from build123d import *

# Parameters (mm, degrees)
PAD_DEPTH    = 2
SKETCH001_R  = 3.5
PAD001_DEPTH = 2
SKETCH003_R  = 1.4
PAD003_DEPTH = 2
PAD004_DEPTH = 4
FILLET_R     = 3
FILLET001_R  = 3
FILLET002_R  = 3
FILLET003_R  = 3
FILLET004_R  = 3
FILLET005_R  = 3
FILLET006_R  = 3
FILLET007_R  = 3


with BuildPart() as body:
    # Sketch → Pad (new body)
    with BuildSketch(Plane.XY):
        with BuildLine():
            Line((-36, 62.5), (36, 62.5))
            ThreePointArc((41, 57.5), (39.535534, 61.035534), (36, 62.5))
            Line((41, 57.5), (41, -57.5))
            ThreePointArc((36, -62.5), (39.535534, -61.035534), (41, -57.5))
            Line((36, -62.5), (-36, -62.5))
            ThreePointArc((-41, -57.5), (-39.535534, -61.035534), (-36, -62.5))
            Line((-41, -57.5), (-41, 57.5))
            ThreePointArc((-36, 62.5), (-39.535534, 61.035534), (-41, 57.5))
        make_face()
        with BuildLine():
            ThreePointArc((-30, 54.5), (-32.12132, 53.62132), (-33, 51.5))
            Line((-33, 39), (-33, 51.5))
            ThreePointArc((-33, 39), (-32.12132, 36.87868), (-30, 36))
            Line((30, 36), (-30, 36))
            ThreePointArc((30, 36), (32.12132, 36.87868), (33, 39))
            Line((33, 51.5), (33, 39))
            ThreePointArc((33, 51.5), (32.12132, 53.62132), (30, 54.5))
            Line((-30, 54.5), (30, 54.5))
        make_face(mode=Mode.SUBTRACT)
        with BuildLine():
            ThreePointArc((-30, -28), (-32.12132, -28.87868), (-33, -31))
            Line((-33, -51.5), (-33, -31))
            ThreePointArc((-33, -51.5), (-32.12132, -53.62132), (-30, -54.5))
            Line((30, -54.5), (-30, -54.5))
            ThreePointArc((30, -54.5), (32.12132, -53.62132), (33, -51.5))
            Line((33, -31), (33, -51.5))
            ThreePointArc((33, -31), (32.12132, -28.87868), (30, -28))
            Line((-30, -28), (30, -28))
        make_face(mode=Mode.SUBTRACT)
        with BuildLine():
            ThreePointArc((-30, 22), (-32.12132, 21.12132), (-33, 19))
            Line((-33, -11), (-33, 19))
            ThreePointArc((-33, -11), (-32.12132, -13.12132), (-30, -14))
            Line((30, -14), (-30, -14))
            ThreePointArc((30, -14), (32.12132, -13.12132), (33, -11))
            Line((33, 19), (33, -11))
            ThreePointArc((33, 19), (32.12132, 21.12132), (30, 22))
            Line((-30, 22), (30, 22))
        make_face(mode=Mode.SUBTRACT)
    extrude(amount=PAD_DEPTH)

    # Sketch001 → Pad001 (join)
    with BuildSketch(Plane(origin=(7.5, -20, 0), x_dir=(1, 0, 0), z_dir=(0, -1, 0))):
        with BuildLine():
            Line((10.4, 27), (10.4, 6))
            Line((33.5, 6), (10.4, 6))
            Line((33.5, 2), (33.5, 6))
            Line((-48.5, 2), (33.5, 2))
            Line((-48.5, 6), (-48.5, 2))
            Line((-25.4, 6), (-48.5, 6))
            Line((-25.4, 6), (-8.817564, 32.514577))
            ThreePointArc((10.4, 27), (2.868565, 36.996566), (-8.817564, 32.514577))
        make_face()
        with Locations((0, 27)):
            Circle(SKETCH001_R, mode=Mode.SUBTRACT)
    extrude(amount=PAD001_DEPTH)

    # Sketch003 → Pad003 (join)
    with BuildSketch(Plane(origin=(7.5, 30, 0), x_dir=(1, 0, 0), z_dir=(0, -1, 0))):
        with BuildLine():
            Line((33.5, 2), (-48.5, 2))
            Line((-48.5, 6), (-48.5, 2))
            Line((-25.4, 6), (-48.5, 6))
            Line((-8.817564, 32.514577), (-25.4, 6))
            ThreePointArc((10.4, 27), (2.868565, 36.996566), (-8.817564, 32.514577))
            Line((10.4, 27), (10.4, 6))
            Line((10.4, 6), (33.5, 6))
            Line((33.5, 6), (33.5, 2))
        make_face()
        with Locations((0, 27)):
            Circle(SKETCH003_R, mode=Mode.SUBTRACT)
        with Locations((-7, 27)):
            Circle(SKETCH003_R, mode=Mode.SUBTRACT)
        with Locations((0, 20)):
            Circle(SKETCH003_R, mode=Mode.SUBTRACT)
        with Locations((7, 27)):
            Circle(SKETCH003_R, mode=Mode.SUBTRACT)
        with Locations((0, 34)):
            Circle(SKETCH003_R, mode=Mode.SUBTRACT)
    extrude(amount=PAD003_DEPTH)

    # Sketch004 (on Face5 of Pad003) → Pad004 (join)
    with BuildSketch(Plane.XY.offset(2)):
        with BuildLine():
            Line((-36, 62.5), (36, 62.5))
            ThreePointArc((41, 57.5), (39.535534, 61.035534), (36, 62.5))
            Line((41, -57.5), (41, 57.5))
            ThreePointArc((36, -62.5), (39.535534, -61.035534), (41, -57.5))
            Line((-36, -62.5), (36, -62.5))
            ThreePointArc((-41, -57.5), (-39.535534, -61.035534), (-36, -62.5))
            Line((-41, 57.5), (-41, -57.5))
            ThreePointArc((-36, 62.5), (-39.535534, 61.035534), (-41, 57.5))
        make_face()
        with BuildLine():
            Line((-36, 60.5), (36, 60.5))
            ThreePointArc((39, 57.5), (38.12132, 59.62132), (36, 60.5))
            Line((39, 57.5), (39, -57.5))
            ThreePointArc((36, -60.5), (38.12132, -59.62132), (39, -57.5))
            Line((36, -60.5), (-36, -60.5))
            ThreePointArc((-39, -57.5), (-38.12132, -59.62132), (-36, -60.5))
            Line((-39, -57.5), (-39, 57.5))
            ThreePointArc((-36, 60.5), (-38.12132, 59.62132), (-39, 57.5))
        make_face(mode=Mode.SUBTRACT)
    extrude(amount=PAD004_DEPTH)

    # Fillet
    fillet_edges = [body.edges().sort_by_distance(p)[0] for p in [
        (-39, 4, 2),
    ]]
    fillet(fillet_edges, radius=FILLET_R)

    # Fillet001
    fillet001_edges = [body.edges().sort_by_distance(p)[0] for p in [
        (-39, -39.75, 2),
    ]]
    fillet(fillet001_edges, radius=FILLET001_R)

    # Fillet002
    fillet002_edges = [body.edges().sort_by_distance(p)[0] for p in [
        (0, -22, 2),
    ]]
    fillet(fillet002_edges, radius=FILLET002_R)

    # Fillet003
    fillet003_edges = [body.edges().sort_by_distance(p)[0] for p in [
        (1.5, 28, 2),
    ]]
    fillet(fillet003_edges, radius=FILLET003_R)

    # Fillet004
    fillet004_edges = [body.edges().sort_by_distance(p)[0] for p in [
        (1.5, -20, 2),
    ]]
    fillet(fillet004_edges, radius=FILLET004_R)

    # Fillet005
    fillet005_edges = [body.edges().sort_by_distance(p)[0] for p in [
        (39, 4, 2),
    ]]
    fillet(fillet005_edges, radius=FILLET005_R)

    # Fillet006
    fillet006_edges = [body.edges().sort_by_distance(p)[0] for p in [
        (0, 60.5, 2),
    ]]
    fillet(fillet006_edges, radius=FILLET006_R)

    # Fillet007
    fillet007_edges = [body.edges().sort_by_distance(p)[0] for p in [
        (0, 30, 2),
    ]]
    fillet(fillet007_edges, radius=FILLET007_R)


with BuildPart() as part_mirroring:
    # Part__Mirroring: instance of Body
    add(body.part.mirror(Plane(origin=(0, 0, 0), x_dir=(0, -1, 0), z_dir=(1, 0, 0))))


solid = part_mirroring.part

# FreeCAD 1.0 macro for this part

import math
import FreeCAD as App
import Part
import Sketcher
Q = App.Units.Quantity


def edges_at(feature, points):
    """Names of the edges that pass closest to the given points."""
    edges = feature.Shape.Edges
    near = lambda p: min(range(len(edges)), key=lambda i: edges[i].distToShape(Part.Vertex(*p))[0])
    return sorted({f"Edge{near(p) + 1}" for p in points})

doc = App.newDocument("Part")
body = doc.addObject("PartDesign::Body", "Body")

sketch1 = body.newObject("Sketcher::SketchObject", "Sketch")
sketch1.AttachmentSupport = (doc.getObject("XY_Plane"), [""])
sketch1.MapMode = "FlatFace"
sketch1.addGeometry([
    Part.LineSegment(App.Vector(36, 62.5, 0), App.Vector(-36, 62.5, 0)),
    Part.ArcOfCircle(Part.Circle(App.Vector(-36, 57.5, 0), App.Vector(0, 0, 1), 5), math.radians(90), math.radians(180)),
    Part.LineSegment(App.Vector(-41, 57.5, 0), App.Vector(-41, -57.5, 0)),
    Part.ArcOfCircle(Part.Circle(App.Vector(-36, -57.5, 0), App.Vector(0, 0, 1), 5), math.radians(180), math.radians(270)),
    Part.LineSegment(App.Vector(-36, -62.5, 0), App.Vector(36, -62.5, 0)),
    Part.ArcOfCircle(Part.Circle(App.Vector(36, -57.5, 0), App.Vector(0, 0, 1), 5), math.radians(-90), math.radians(0)),
    Part.LineSegment(App.Vector(41, -57.5, 0), App.Vector(41, 57.5, 0)),
    Part.ArcOfCircle(Part.Circle(App.Vector(36, 57.5, 0), App.Vector(0, 0, 1), 5), math.radians(0), math.radians(90)),
    Part.LineSegment(App.Vector(-30, -28, 0), App.Vector(30, -28, 0)),
    Part.ArcOfCircle(Part.Circle(App.Vector(30, -31, 0), App.Vector(0, 0, 1), 3), math.radians(0), math.radians(90)),
    Part.LineSegment(App.Vector(33, -31, 0), App.Vector(33, -51.5, 0)),
    Part.ArcOfCircle(Part.Circle(App.Vector(30, -51.5, 0), App.Vector(0, 0, 1), 3), math.radians(-90), math.radians(0)),
    Part.LineSegment(App.Vector(30, -54.5, 0), App.Vector(-30, -54.5, 0)),
    Part.ArcOfCircle(Part.Circle(App.Vector(-30, -51.5, 0), App.Vector(0, 0, 1), 3), math.radians(-180), math.radians(-90)),
    Part.LineSegment(App.Vector(-33, -51.5, 0), App.Vector(-33, -31, 0)),
    Part.ArcOfCircle(Part.Circle(App.Vector(-30, -31, 0), App.Vector(0, 0, 1), 3), math.radians(90), math.radians(180)),
    Part.LineSegment(App.Vector(-30, 22, 0), App.Vector(30, 22, 0)),
    Part.ArcOfCircle(Part.Circle(App.Vector(30, 19, 0), App.Vector(0, 0, 1), 3), math.radians(0), math.radians(90)),
    Part.LineSegment(App.Vector(33, 19, 0), App.Vector(33, -11, 0)),
    Part.ArcOfCircle(Part.Circle(App.Vector(30, -11, 0), App.Vector(0, 0, 1), 3), math.radians(-90), math.radians(0)),
    Part.LineSegment(App.Vector(30, -14, 0), App.Vector(-30, -14, 0)),
    Part.ArcOfCircle(Part.Circle(App.Vector(-30, -11, 0), App.Vector(0, 0, 1), 3), math.radians(-180), math.radians(-90)),
    Part.LineSegment(App.Vector(-33, -11, 0), App.Vector(-33, 19, 0)),
    Part.ArcOfCircle(Part.Circle(App.Vector(-30, 19, 0), App.Vector(0, 0, 1), 3), math.radians(90), math.radians(180)),
    Part.LineSegment(App.Vector(-30, 54.5, 0), App.Vector(30, 54.5, 0)),
    Part.ArcOfCircle(Part.Circle(App.Vector(30, 51.5, 0), App.Vector(0, 0, 1), 3), math.radians(0), math.radians(90)),
    Part.LineSegment(App.Vector(33, 51.5, 0), App.Vector(33, 39, 0)),
    Part.ArcOfCircle(Part.Circle(App.Vector(30, 39, 0), App.Vector(0, 0, 1), 3), math.radians(-90), math.radians(0)),
    Part.LineSegment(App.Vector(30, 36, 0), App.Vector(-30, 36, 0)),
    Part.ArcOfCircle(Part.Circle(App.Vector(-30, 39, 0), App.Vector(0, 0, 1), 3), math.radians(-180), math.radians(-90)),
    Part.LineSegment(App.Vector(-33, 39, 0), App.Vector(-33, 51.5, 0)),
    Part.ArcOfCircle(Part.Circle(App.Vector(-30, 51.5, 0), App.Vector(0, 0, 1), 3), math.radians(90), math.radians(180)),
], False)
sketch1.addConstraint([
    Sketcher.Constraint("Tangent", 0, 2, 1, 1),
    Sketcher.Constraint("Tangent", 1, 2, 2, 1),
    Sketcher.Constraint("Tangent", 2, 2, 3, 1),
    Sketcher.Constraint("Tangent", 3, 2, 4, 1),
    Sketcher.Constraint("Tangent", 4, 2, 5, 1),
    Sketcher.Constraint("Tangent", 5, 2, 6, 1),
    Sketcher.Constraint("Tangent", 6, 2, 7, 1),
    Sketcher.Constraint("Tangent", 7, 2, 0, 1),
    Sketcher.Constraint("Tangent", 8, 2, 9, 2),
    Sketcher.Constraint("Tangent", 9, 1, 10, 1),
    Sketcher.Constraint("Tangent", 10, 2, 11, 2),
    Sketcher.Constraint("Tangent", 11, 1, 12, 1),
    Sketcher.Constraint("Tangent", 12, 2, 13, 2),
    Sketcher.Constraint("Tangent", 13, 1, 14, 1),
    Sketcher.Constraint("Tangent", 14, 2, 15, 2),
    Sketcher.Constraint("Tangent", 15, 1, 8, 1),
    Sketcher.Constraint("Tangent", 16, 2, 17, 2),
    Sketcher.Constraint("Tangent", 17, 1, 18, 1),
    Sketcher.Constraint("Tangent", 18, 2, 19, 2),
    Sketcher.Constraint("Tangent", 19, 1, 20, 1),
    Sketcher.Constraint("Tangent", 20, 2, 21, 2),
    Sketcher.Constraint("Tangent", 21, 1, 22, 1),
    Sketcher.Constraint("Tangent", 22, 2, 23, 2),
    Sketcher.Constraint("Tangent", 23, 1, 16, 1),
    Sketcher.Constraint("Tangent", 24, 2, 25, 2),
    Sketcher.Constraint("Tangent", 25, 1, 26, 1),
    Sketcher.Constraint("Tangent", 26, 2, 27, 2),
    Sketcher.Constraint("Tangent", 27, 1, 28, 1),
    Sketcher.Constraint("Tangent", 28, 2, 29, 2),
    Sketcher.Constraint("Tangent", 29, 1, 30, 1),
    Sketcher.Constraint("Tangent", 30, 2, 31, 2),
    Sketcher.Constraint("Tangent", 31, 1, 24, 1),
    Sketcher.Constraint("Horizontal", 0),
    Sketcher.Constraint("Vertical", 2),
    Sketcher.Constraint("Horizontal", 4),
    Sketcher.Constraint("Vertical", 6),
    Sketcher.Constraint("Horizontal", 8),
    Sketcher.Constraint("Vertical", 10),
    Sketcher.Constraint("Horizontal", 12),
    Sketcher.Constraint("Vertical", 14),
    Sketcher.Constraint("Horizontal", 16),
    Sketcher.Constraint("Vertical", 18),
    Sketcher.Constraint("Horizontal", 20),
    Sketcher.Constraint("Vertical", 22),
    Sketcher.Constraint("Horizontal", 24),
    Sketcher.Constraint("Vertical", 26),
    Sketcher.Constraint("Horizontal", 28),
    Sketcher.Constraint("Vertical", 30),
    Sketcher.Constraint("Equal", 1, 3),
    Sketcher.Constraint("Equal", 3, 5),
    Sketcher.Constraint("Equal", 5, 7),
    Sketcher.Constraint("Equal", 9, 11),
    Sketcher.Constraint("Equal", 11, 13),
    Sketcher.Constraint("Equal", 13, 15),
    Sketcher.Constraint("Equal", 15, 17),
    Sketcher.Constraint("Equal", 17, 19),
    Sketcher.Constraint("Equal", 19, 21),
    Sketcher.Constraint("Equal", 21, 23),
    Sketcher.Constraint("Equal", 23, 25),
    Sketcher.Constraint("Equal", 25, 27),
    Sketcher.Constraint("Equal", 27, 29),
    Sketcher.Constraint("Equal", 29, 31),
    Sketcher.Constraint("Symmetric", 1, 3, 5, 3, -1, 1),
    Sketcher.Constraint("Symmetric", 13, 3, 25, 3, -1, 1),
    Sketcher.Constraint("Vertical", 11, 3, 17, 3),
    Sketcher.Constraint("Vertical", 15, 3, 21, 3),
    Sketcher.Constraint("Vertical", 19, 3, 25, 3),
    Sketcher.Constraint("Vertical", 23, 3, 29, 3),
    Sketcher.Constraint("Radius", 1, Q("5 mm")),
    Sketcher.Constraint("Radius", 9, Q("3.000001 mm")),
    Sketcher.Constraint("DistanceX", 0, 2, 0, 1, Q("72 mm")),
    Sketcher.Constraint("DistanceX", 8, 1, 8, 2, Q("60 mm")),
    Sketcher.Constraint("DistanceY", 2, 2, 2, 1, Q("115 mm")),
    Sketcher.Constraint("DistanceY", 18, 2, 18, 1, Q("30 mm")),
    Sketcher.Constraint("DistanceY", 10, 2, 10, 1, Q("20.5 mm")),
    Sketcher.Constraint("DistanceY", 26, 2, 26, 1, Q("12.5 mm")),
    Sketcher.Constraint("DistanceY", 9, 3, -1, 1, Q("31.000001 mm")),
    Sketcher.Constraint("DistanceY", -1, 1, 17, 3, Q("18.999999 mm")),
])
pad1 = body.newObject("PartDesign::Pad", "Pad")
pad1.Profile = sketch1
pad1.Length = 2

sketch2 = body.newObject("Sketcher::SketchObject", "Sketch001")
sketch2.AttachmentSupport = (doc.getObject("XZ_Plane"), [""])
sketch2.MapMode = "FlatFace"
sketch2.AttachmentOffset = App.Placement(App.Vector(0, 0, 20), App.Rotation())
sketch2.addGeometry([
    Part.LineSegment(App.Vector(17.9, 6, 0), App.Vector(17.9, 27, 0)),
    Part.ArcOfCircle(Part.Circle(App.Vector(7.5, 27, 0), App.Vector(0, 0, 1), 10.4), math.radians(0), math.radians(148)),
    Part.LineSegment(App.Vector(-1.3, 32.5, 0), App.Vector(-17.9, 6, 0)),
    Part.LineSegment(App.Vector(-17.9, 6, 0), App.Vector(-41, 6, 0)),
    Part.LineSegment(App.Vector(-41, 6, 0), App.Vector(-41, 2, 0)),
    Part.LineSegment(App.Vector(-41, 2, 0), App.Vector(41, 2, 0)),
    Part.LineSegment(App.Vector(41, 2, 0), App.Vector(41, 6, 0)),
    Part.LineSegment(App.Vector(41, 6, 0), App.Vector(17.9, 6, 0)),
    Part.Circle(App.Vector(7.5, 27, 0), App.Vector(0, 0, 1), 3.5),
], False)
sketch2.addConstraint([
    Sketcher.Constraint("Tangent", 0, 2, 1, 1),
    Sketcher.Constraint("Tangent", 1, 2, 2, 1),
    Sketcher.Constraint("Coincident", 2, 2, 3, 1),
    Sketcher.Constraint("Coincident", 3, 2, 4, 1),
    Sketcher.Constraint("Coincident", 4, 2, 5, 1),
    Sketcher.Constraint("Coincident", 5, 2, 6, 1),
    Sketcher.Constraint("Coincident", 6, 2, 7, 1),
    Sketcher.Constraint("Coincident", 7, 2, 0, 1),
    Sketcher.Constraint("Vertical", 0),
    Sketcher.Constraint("Horizontal", 3),
    Sketcher.Constraint("Vertical", 4),
    Sketcher.Constraint("Horizontal", 5),
    Sketcher.Constraint("Vertical", 6),
    Sketcher.Constraint("Horizontal", 7),
    Sketcher.Constraint("Coincident", 8, 3, 1, 3),
    Sketcher.Constraint("Symmetric", 3, 2, 6, 2, -2),
    Sketcher.Constraint("Equal", 3, 7),
    Sketcher.Constraint("Diameter", 8, Q("7 mm")),
    Sketcher.Constraint("Radius", 1, Q("10.4 mm")),
    Sketcher.Constraint("DistanceX", 5, 1, 5, 2, Q("82 mm")),
    Sketcher.Constraint("DistanceY", 0, 1, 0, 2, Q("21 mm")),
    Sketcher.Constraint("DistanceY", 4, 2, 4, 1, Q("4 mm")),
    Sketcher.Constraint("DistanceX", 3, 2, 3, 1, Q("23.1 mm")),
    Sketcher.Constraint("DistanceY", -1, 1, 1, 3, Q("27 mm")),
])
pad2 = body.newObject("PartDesign::Pad", "Pad001")
pad2.Profile = sketch2
pad2.Length = 2

sketch3 = body.newObject("Sketcher::SketchObject", "Sketch002")
sketch3.AttachmentSupport = (doc.getObject("XZ_Plane"), [""])
sketch3.MapMode = "FlatFace"
sketch3.AttachmentOffset = App.Placement(App.Vector(0, 0, -30), App.Rotation())
sketch3.addGeometry([
    Part.LineSegment(App.Vector(-41, 2, 0), App.Vector(41, 2, 0)),
    Part.LineSegment(App.Vector(41, 2, 0), App.Vector(41, 6, 0)),
    Part.LineSegment(App.Vector(41, 6, 0), App.Vector(17.9, 6, 0)),
    Part.LineSegment(App.Vector(17.9, 6, 0), App.Vector(17.9, 27, 0)),
    Part.ArcOfCircle(Part.Circle(App.Vector(7.5, 27, 0), App.Vector(0, 0, 1), 10.4), math.radians(0), math.radians(148)),
    Part.LineSegment(App.Vector(-1.3, 32.5, 0), App.Vector(-17.9, 6, 0)),
    Part.LineSegment(App.Vector(-17.9, 6, 0), App.Vector(-41, 6, 0)),
    Part.LineSegment(App.Vector(-41, 6, 0), App.Vector(-41, 2, 0)),
    Part.Circle(App.Vector(7.5, 20, 0), App.Vector(0, 0, 1), 1.4),
    Part.Circle(App.Vector(14.5, 27, 0), App.Vector(0, 0, 1), 1.4),
    Part.Circle(App.Vector(7.5, 27, 0), App.Vector(0, 0, 1), 1.4),
    Part.Circle(App.Vector(0.5, 27, 0), App.Vector(0, 0, 1), 1.4),
    Part.Circle(App.Vector(7.5, 34, 0), App.Vector(0, 0, 1), 1.4),
], False)
sketch3.addConstraint([
    Sketcher.Constraint("Coincident", 0, 2, 1, 1),
    Sketcher.Constraint("Coincident", 1, 2, 2, 1),
    Sketcher.Constraint("Coincident", 2, 2, 3, 1),
    Sketcher.Constraint("Tangent", 3, 2, 4, 1),
    Sketcher.Constraint("Tangent", 4, 2, 5, 1),
    Sketcher.Constraint("Coincident", 5, 2, 6, 1),
    Sketcher.Constraint("Coincident", 6, 2, 7, 1),
    Sketcher.Constraint("Coincident", 7, 2, 0, 1),
    Sketcher.Constraint("Horizontal", 0),
    Sketcher.Constraint("Vertical", 1),
    Sketcher.Constraint("Horizontal", 2),
    Sketcher.Constraint("Vertical", 3),
    Sketcher.Constraint("Horizontal", 6),
    Sketcher.Constraint("Vertical", 7),
    Sketcher.Constraint("Coincident", 10, 3, 4, 3),
    Sketcher.Constraint("Equal", 8, 9),
    Sketcher.Constraint("Equal", 9, 10),
    Sketcher.Constraint("Equal", 10, 11),
    Sketcher.Constraint("Equal", 11, 12),
    Sketcher.Constraint("Symmetric", 2, 2, 5, 2, -2),
    Sketcher.Constraint("Horizontal", 4, 3, 9, 3),
    Sketcher.Constraint("Horizontal", 10, 3, 11, 3),
    Sketcher.Constraint("Vertical", 4, 3, 8, 3),
    Sketcher.Constraint("Vertical", 10, 3, 12, 3),
    Sketcher.Constraint("Equal", 2, 6),
    Sketcher.Constraint("Diameter", 8, Q("2.8 mm")),
    Sketcher.Constraint("Radius", 4, Q("10.4 mm")),
    Sketcher.Constraint("DistanceX", 0, 1, 0, 2, Q("82 mm")),
    Sketcher.Constraint("DistanceY", 1, 1, 1, 2, Q("4 mm")),
    Sketcher.Constraint("DistanceY", 3, 1, 3, 2, Q("21 mm")),
    Sketcher.Constraint("DistanceX", 2, 2, 2, 1, Q("23.1 mm")),
    Sketcher.Constraint("DistanceY", -1, 1, 4, 3, Q("27 mm")),
    Sketcher.Constraint("DistanceY", -1, 1, 8, 3, Q("20 mm")),
    Sketcher.Constraint("DistanceY", -1, 1, 12, 3, Q("34 mm")),
    Sketcher.Constraint("DistanceX", 4, 3, 9, 3, Q("7 mm")),
    Sketcher.Constraint("DistanceX", 11, 3, 10, 3, Q("7 mm")),
])
pad3 = body.newObject("PartDesign::Pad", "Pad002")
pad3.Profile = sketch3
pad3.Length = 2

sketch4 = body.newObject("Sketcher::SketchObject", "Sketch003")
sketch4.AttachmentSupport = (doc.getObject("XY_Plane"), [""])
sketch4.MapMode = "FlatFace"
sketch4.AttachmentOffset = App.Placement(App.Vector(0, 0, 2), App.Rotation())
sketch4.addGeometry([
    Part.LineSegment(App.Vector(36, 62.5, 0), App.Vector(-36, 62.5, 0)),
    Part.ArcOfCircle(Part.Circle(App.Vector(-36, 57.5, 0), App.Vector(0, 0, 1), 5), math.radians(90), math.radians(180)),
    Part.LineSegment(App.Vector(-41, 57.5, 0), App.Vector(-41, -57.5, 0)),
    Part.ArcOfCircle(Part.Circle(App.Vector(-36, -57.5, 0), App.Vector(0, 0, 1), 5), math.radians(180), math.radians(270)),
    Part.LineSegment(App.Vector(-36, -62.5, 0), App.Vector(36, -62.5, 0)),
    Part.ArcOfCircle(Part.Circle(App.Vector(36, -57.5, 0), App.Vector(0, 0, 1), 5), math.radians(-90), math.radians(0)),
    Part.LineSegment(App.Vector(41, -57.5, 0), App.Vector(41, 57.5, 0)),
    Part.ArcOfCircle(Part.Circle(App.Vector(36, 57.5, 0), App.Vector(0, 0, 1), 5), math.radians(0), math.radians(90)),
    Part.LineSegment(App.Vector(-36, 60.5, 0), App.Vector(36, 60.5, 0)),
    Part.ArcOfCircle(Part.Circle(App.Vector(36, 57.5, 0), App.Vector(0, 0, 1), 3), math.radians(0), math.radians(90)),
    Part.LineSegment(App.Vector(39, 57.5, 0), App.Vector(39, -57.5, 0)),
    Part.ArcOfCircle(Part.Circle(App.Vector(36, -57.5, 0), App.Vector(0, 0, 1), 3), math.radians(-90), math.radians(0)),
    Part.LineSegment(App.Vector(36, -60.5, 0), App.Vector(-36, -60.5, 0)),
    Part.ArcOfCircle(Part.Circle(App.Vector(-36, -57.5, 0), App.Vector(0, 0, 1), 3), math.radians(-180), math.radians(-90)),
    Part.LineSegment(App.Vector(-39, -57.5, 0), App.Vector(-39, 57.5, 0)),
    Part.ArcOfCircle(Part.Circle(App.Vector(-36, 57.5, 0), App.Vector(0, 0, 1), 3), math.radians(90), math.radians(180)),
], False)
sketch4.addConstraint([
    Sketcher.Constraint("Tangent", 0, 2, 1, 1),
    Sketcher.Constraint("Tangent", 1, 2, 2, 1),
    Sketcher.Constraint("Tangent", 2, 2, 3, 1),
    Sketcher.Constraint("Tangent", 3, 2, 4, 1),
    Sketcher.Constraint("Tangent", 4, 2, 5, 1),
    Sketcher.Constraint("Tangent", 5, 2, 6, 1),
    Sketcher.Constraint("Tangent", 6, 2, 7, 1),
    Sketcher.Constraint("Tangent", 7, 2, 0, 1),
    Sketcher.Constraint("Tangent", 8, 2, 9, 2),
    Sketcher.Constraint("Tangent", 9, 1, 10, 1),
    Sketcher.Constraint("Tangent", 10, 2, 11, 2),
    Sketcher.Constraint("Tangent", 11, 1, 12, 1),
    Sketcher.Constraint("Tangent", 12, 2, 13, 2),
    Sketcher.Constraint("Tangent", 13, 1, 14, 1),
    Sketcher.Constraint("Tangent", 14, 2, 15, 2),
    Sketcher.Constraint("Tangent", 15, 1, 8, 1),
    Sketcher.Constraint("Horizontal", 0),
    Sketcher.Constraint("Vertical", 2),
    Sketcher.Constraint("Horizontal", 4),
    Sketcher.Constraint("Vertical", 6),
    Sketcher.Constraint("Horizontal", 8),
    Sketcher.Constraint("Vertical", 10),
    Sketcher.Constraint("Horizontal", 12),
    Sketcher.Constraint("Vertical", 14),
    Sketcher.Constraint("Coincident", 9, 3, 7, 3),
    Sketcher.Constraint("Coincident", 11, 3, 5, 3),
    Sketcher.Constraint("Coincident", 13, 3, 3, 3),
    Sketcher.Constraint("Equal", 1, 3),
    Sketcher.Constraint("Equal", 3, 5),
    Sketcher.Constraint("Equal", 5, 7),
    Sketcher.Constraint("Equal", 13, 15),
    Sketcher.Constraint("Symmetric", 1, 3, 5, 3, -1, 1),
    Sketcher.Constraint("Radius", 1, Q("5 mm")),
    Sketcher.Constraint("Radius", 9, Q("3.000001 mm")),
    Sketcher.Constraint("DistanceX", 0, 2, 0, 1, Q("72 mm")),
    Sketcher.Constraint("DistanceY", 2, 2, 2, 1, Q("115 mm")),
])
pad4 = body.newObject("PartDesign::Pad", "Pad003")
pad4.Profile = sketch4
pad4.Length = 4
doc.recompute()

fillet = body.newObject("PartDesign::Fillet", "Fillet")
fillet.Base = (pad4, edges_at(pad4, [(-39, 4, 2)]))
fillet.Radius = 3
doc.recompute()

fillet2 = body.newObject("PartDesign::Fillet", "Fillet001")
fillet2.Base = (fillet, edges_at(fillet, [(-39, -39.75, 2)]))
fillet2.Radius = 3
doc.recompute()

fillet3 = body.newObject("PartDesign::Fillet", "Fillet002")
fillet3.Base = (fillet2, edges_at(fillet2, [(0, -22, 2)]))
fillet3.Radius = 3
doc.recompute()

fillet4 = body.newObject("PartDesign::Fillet", "Fillet003")
fillet4.Base = (fillet3, edges_at(fillet3, [(1.5, 28, 2)]))
fillet4.Radius = 3
doc.recompute()

fillet5 = body.newObject("PartDesign::Fillet", "Fillet004")
fillet5.Base = (fillet4, edges_at(fillet4, [(1.5, -20, 2)]))
fillet5.Radius = 3
doc.recompute()

fillet6 = body.newObject("PartDesign::Fillet", "Fillet005")
fillet6.Base = (fillet5, edges_at(fillet5, [(39, 4, 2)]))
fillet6.Radius = 3
doc.recompute()

fillet7 = body.newObject("PartDesign::Fillet", "Fillet006")
fillet7.Base = (fillet6, edges_at(fillet6, [(0, 60.5, 2)]))
fillet7.Radius = 3
doc.recompute()

fillet8 = body.newObject("PartDesign::Fillet", "Fillet007")
fillet8.Base = (fillet7, edges_at(fillet7, [(0, 30, 2)]))
fillet8.Radius = 3
body2 = doc.addObject("PartDesign::Body", "Body001")
doc.recompute()

mirroring = doc.addObject("Part::Mirroring", "Mirroring")
mirroring.Source = body
mirroring.Base = App.Vector(0, 0, 0)
mirroring.Normal = App.Vector(1, 0, 0)
body2.BaseFeature = mirroring
doc.recompute()
body.Visibility = False
mirroring.Visibility = False

doc.recompute()
